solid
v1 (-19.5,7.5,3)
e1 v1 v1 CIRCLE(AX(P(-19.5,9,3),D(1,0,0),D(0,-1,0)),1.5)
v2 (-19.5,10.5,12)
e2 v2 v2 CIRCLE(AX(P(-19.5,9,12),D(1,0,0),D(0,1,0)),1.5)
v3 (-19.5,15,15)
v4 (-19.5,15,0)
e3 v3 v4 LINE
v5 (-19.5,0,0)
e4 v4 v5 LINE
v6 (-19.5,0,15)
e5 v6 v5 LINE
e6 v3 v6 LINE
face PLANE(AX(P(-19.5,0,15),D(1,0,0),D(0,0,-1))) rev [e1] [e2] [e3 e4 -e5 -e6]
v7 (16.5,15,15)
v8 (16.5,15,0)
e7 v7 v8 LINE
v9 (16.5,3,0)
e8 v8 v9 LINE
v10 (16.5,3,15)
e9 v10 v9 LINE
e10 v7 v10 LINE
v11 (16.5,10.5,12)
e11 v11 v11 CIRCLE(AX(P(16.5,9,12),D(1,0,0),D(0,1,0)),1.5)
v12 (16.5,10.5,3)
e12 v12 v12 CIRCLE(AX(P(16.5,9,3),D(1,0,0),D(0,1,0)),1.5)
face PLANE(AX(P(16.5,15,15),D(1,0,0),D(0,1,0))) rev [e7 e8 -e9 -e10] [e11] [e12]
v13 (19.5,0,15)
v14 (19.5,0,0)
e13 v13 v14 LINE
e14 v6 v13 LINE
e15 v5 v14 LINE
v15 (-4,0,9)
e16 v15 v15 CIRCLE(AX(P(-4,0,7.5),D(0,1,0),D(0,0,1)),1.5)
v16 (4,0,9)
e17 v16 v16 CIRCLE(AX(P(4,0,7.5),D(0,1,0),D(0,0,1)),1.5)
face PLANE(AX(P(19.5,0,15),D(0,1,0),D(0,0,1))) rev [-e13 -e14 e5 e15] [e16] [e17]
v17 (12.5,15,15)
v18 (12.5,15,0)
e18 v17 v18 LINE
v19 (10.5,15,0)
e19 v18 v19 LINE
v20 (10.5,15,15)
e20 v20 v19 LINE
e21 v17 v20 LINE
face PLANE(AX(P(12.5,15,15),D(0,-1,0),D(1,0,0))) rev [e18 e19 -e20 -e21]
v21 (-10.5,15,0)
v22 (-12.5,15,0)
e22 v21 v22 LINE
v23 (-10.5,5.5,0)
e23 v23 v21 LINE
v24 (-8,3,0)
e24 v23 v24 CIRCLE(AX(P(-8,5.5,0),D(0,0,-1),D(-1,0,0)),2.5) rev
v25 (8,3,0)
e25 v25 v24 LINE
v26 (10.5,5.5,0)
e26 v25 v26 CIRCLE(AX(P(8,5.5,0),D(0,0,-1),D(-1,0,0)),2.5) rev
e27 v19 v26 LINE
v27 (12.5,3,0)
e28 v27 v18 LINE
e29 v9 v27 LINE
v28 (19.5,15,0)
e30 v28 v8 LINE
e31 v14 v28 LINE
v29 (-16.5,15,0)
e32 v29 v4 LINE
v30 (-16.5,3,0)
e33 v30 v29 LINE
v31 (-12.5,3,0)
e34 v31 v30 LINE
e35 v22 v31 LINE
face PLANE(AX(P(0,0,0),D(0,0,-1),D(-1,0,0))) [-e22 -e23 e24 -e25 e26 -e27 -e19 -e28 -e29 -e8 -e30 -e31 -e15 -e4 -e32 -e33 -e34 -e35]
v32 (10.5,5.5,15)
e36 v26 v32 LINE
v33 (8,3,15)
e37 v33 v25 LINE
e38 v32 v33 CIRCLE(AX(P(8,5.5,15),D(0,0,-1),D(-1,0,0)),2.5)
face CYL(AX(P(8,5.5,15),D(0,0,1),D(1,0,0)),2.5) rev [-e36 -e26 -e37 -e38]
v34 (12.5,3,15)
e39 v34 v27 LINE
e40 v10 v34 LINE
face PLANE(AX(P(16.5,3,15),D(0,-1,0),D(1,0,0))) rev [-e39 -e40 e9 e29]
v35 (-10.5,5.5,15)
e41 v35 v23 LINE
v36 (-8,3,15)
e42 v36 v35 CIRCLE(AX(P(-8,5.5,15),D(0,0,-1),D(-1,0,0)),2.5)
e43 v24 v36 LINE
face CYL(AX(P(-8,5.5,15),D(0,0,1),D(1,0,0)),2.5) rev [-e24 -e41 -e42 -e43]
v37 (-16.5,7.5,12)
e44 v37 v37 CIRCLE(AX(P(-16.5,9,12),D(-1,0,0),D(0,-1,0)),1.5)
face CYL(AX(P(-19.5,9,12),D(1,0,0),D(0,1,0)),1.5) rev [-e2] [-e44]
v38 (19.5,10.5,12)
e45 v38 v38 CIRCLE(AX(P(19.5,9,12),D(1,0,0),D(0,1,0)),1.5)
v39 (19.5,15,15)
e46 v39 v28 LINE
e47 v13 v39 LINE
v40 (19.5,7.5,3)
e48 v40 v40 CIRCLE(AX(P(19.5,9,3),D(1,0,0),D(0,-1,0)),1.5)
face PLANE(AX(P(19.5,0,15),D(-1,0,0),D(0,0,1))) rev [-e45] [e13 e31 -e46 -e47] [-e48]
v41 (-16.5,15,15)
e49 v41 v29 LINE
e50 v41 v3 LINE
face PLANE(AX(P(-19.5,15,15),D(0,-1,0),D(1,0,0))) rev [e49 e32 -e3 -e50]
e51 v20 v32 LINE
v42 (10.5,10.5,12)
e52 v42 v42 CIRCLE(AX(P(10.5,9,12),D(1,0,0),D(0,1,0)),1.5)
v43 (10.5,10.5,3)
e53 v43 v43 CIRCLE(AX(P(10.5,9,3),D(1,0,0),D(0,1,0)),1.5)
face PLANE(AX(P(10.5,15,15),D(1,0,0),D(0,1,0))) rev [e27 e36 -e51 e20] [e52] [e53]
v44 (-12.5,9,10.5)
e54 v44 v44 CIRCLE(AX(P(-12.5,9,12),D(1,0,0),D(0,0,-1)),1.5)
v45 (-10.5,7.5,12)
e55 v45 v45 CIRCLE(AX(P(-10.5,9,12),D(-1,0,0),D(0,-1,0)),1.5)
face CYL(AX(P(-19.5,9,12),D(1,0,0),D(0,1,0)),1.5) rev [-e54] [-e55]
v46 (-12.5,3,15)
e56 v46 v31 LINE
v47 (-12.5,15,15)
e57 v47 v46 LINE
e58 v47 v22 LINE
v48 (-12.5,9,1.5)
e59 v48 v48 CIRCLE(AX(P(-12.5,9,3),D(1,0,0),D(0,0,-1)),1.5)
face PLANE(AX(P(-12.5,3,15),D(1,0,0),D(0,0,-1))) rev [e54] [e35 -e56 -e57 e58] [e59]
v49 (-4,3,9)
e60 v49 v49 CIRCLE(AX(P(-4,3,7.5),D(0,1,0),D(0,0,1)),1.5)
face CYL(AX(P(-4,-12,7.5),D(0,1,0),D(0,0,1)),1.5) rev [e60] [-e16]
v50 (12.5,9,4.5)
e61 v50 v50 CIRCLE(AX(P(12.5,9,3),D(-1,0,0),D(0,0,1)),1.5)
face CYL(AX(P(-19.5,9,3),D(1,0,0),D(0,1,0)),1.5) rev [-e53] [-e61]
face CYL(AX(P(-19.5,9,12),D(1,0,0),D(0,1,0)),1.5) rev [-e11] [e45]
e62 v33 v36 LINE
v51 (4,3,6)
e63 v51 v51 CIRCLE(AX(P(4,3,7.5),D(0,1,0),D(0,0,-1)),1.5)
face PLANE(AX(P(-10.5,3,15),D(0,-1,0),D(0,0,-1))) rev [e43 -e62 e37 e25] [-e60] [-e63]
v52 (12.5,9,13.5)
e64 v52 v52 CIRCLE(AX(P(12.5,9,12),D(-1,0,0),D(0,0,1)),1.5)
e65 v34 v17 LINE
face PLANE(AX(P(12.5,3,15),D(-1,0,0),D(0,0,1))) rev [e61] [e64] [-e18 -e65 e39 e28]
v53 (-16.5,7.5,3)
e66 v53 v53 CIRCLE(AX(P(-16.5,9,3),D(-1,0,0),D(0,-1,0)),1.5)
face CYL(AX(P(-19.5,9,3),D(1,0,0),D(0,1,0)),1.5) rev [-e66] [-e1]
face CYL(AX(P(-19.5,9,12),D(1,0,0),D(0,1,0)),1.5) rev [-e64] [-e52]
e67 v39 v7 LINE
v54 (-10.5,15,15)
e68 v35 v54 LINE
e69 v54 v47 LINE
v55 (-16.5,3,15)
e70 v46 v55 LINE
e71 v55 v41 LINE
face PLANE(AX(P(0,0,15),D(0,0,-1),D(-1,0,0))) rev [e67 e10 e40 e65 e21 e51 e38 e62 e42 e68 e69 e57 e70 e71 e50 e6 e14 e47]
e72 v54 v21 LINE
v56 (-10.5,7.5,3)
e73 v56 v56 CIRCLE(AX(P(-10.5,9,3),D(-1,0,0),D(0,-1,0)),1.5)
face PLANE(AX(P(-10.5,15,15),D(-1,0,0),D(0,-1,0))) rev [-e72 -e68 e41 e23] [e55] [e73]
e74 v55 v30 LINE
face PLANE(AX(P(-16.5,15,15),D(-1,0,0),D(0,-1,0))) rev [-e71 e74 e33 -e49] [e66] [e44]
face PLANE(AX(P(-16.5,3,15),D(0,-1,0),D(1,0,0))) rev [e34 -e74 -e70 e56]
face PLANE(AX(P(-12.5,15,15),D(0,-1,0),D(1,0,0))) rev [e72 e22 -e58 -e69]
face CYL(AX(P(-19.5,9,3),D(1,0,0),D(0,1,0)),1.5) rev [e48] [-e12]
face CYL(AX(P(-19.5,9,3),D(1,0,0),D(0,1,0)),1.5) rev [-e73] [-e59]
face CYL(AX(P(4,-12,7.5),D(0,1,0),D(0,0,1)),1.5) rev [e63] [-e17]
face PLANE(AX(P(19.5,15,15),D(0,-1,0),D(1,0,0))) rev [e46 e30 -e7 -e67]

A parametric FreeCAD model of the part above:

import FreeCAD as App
import Part
import Sketcher

V = App.Vector
Q = App.Units.Quantity


def edges_at(feature, points):
    """Names of the edges that pass closest to the given points."""
    edges = feature.Shape.Edges
    near = lambda p: min(range(len(edges)), key=lambda i: edges[i].distToShape(Part.Vertex(*p))[0])
    return sorted({f"Edge{near(p) + 1}" for p in points})

doc = App.newDocument("Part")
body = doc.addObject("PartDesign::Body", "Body")

# Sketch on XY plane
sketch1 = body.newObject("Sketcher::SketchObject", "Sketch")
sketch1.AttachmentSupport = (doc.getObject("XY_Plane"), [""])
sketch1.MapMode = "FlatFace"
sketch1.addGeometry([
    Part.LineSegment(V(-19.5, 0, 0), V(19.5, 0, 0)),  # 0
    Part.LineSegment(V(19.5, 0, 0), V(19.5, 15, 0)),  # 1
    Part.LineSegment(V(19.5, 15, 0), V(16.5, 15, 0)),  # 2
    Part.LineSegment(V(16.5, 15, 0), V(16.5, 3, 0)),  # 3
    Part.LineSegment(V(16.5, 3, 0), V(12.5, 3, 0)),  # 4
    Part.LineSegment(V(12.5, 3, 0), V(12.5, 15, 0)),  # 5
    Part.LineSegment(V(12.5, 15, 0), V(10.5, 15, 0)),  # 6
    Part.LineSegment(V(10.5, 15, 0), V(10.5, 3, 0)),  # 7
    Part.LineSegment(V(10.5, 3, 0), V(-10.5, 3, 0)),  # 8
    Part.LineSegment(V(-10.5, 3, 0), V(-10.5, 15, 0)),  # 9
    Part.LineSegment(V(-10.5, 15, 0), V(-12.5, 15, 0)),  # 10
    Part.LineSegment(V(-12.5, 15, 0), V(-12.5, 3, 0)),  # 11
    Part.LineSegment(V(-12.5, 3, 0), V(-16.5, 3, 0)),  # 12
    Part.LineSegment(V(-16.5, 3, 0), V(-16.5, 15, 0)),  # 13
    Part.LineSegment(V(-16.5, 15, 0), V(-19.5, 15, 0)),  # 14
    Part.LineSegment(V(-19.5, 15, 0), V(-19.5, 0, 0)),  # 15
], False)
sketch1.addConstraint([
    Sketcher.Constraint("Coincident", 0, 2, 1, 1),
    Sketcher.Constraint("Coincident", 1, 2, 2, 1),
    Sketcher.Constraint("Coincident", 2, 2, 3, 1),
    Sketcher.Constraint("Coincident", 3, 2, 4, 1),
    Sketcher.Constraint("Coincident", 4, 2, 5, 1),
    Sketcher.Constraint("Coincident", 5, 2, 6, 1),
    Sketcher.Constraint("Coincident", 6, 2, 7, 1),
    Sketcher.Constraint("Coincident", 7, 2, 8, 1),
    Sketcher.Constraint("Coincident", 8, 2, 9, 1),
    Sketcher.Constraint("Coincident", 9, 2, 10, 1),
    Sketcher.Constraint("Coincident", 10, 2, 11, 1),
    Sketcher.Constraint("Coincident", 11, 2, 12, 1),
    Sketcher.Constraint("Coincident", 12, 2, 13, 1),
    Sketcher.Constraint("Coincident", 13, 2, 14, 1),
    Sketcher.Constraint("Coincident", 14, 2, 15, 1),
    Sketcher.Constraint("Coincident", 15, 2, 0, 1),
    Sketcher.Constraint("Horizontal", 0),
    Sketcher.Constraint("Vertical", 1),
    Sketcher.Constraint("Horizontal", 2),
    Sketcher.Constraint("Vertical", 3),
    Sketcher.Constraint("Horizontal", 4),
    Sketcher.Constraint("Vertical", 5),
    Sketcher.Constraint("Horizontal", 6),
    Sketcher.Constraint("Vertical", 7),
    Sketcher.Constraint("Horizontal", 8),
    Sketcher.Constraint("Vertical", 9),
    Sketcher.Constraint("Horizontal", 10),
    Sketcher.Constraint("Vertical", 11),
    Sketcher.Constraint("Horizontal", 12),
    Sketcher.Constraint("Vertical", 13),
    Sketcher.Constraint("Horizontal", 14),
    Sketcher.Constraint("Vertical", 15),
    Sketcher.Constraint("Symmetric", 0, 2, 15, 2, -1, 1),
    Sketcher.Constraint("Symmetric", 6, 2, 9, 2, -2),
    Sketcher.Constraint("Symmetric", 4, 2, 11, 2, -2),
    Sketcher.Constraint("Symmetric", 2, 2, 13, 2, -2),
    Sketcher.Constraint("Horizontal", 2, 2, 5, 2),
    Sketcher.Constraint("Horizontal", 4, 2, 7, 2),
    Sketcher.Constraint("DistanceX", 0, 1, 0, 2, Q("39 mm")),
    Sketcher.Constraint("DistanceX", 2, 2, 2, 1, Q("3 mm")),
    Sketcher.Constraint("DistanceX", 4, 2, 4, 1, Q("4 mm")),
    Sketcher.Constraint("DistanceX", 6, 2, 6, 1, Q("2 mm")),
    Sketcher.Constraint("DistanceY", 1, 1, 1, 2, Q("15 mm")),
    Sketcher.Constraint("DistanceY", 3, 2, 3, 1, Q("12 mm")),
])
pad1 = body.newObject("PartDesign::Pad", "Pad")
pad1.Profile = sketch1
pad1.Length = 15

# Sketch on XZ plane
sketch2 = body.newObject("Sketcher::SketchObject", "Sketch001")
sketch2.AttachmentSupport = (doc.getObject("XZ_Plane"), [""])
sketch2.MapMode = "FlatFace"
sketch2.AttachmentOffset = App.Placement(V(0, 0, -3), App.Rotation())
sketch2.addGeometry([
    Part.Circle(V(-4, 7.5, 0), V(0, 0, 1), 1.5),
    Part.Circle(V(4, 7.5, 0), V(0, 0, 1), 1.5),
], False)
sketch2.addConstraint([
    Sketcher.Constraint("Equal", 0, 1),
    Sketcher.Constraint("Symmetric", 0, 3, 1, 3, -2),
    Sketcher.Constraint("Diameter", 0, Q("3 mm")),
    Sketcher.Constraint("DistanceX", 0, 3, -1, 1, Q("4 mm")),
    Sketcher.Constraint("DistanceY", -1, 1, 0, 3, Q("7.5 mm")),
])
pocket1 = body.newObject("PartDesign::Pocket", "Pocket")
pocket1.Profile = sketch2
pocket1.Length = 15
pocket1.Reversed = True

# Sketch on YZ plane
sketch3 = body.newObject("Sketcher::SketchObject", "Sketch002")
sketch3.AttachmentSupport = (doc.getObject("YZ_Plane"), [""])
sketch3.MapMode = "FlatFace"
sketch3.AttachmentOffset = App.Placement(V(0, 0, 19.5), App.Rotation())
sketch3.addGeometry([
    Part.Circle(V(9, 12, 0), V(0, 0, 1), 1.5),
    Part.Circle(V(9, 3, 0), V(0, 0, 1), 1.5),
], False)
sketch3.addConstraint([
    Sketcher.Constraint("Equal", 0, 1),
    Sketcher.Constraint("Vertical", 0, 3, 1, 3),
    Sketcher.Constraint("Diameter", 0, Q("3 mm")),
    Sketcher.Constraint("DistanceX", -1, 1, 0, 3, Q("9 mm")),
    Sketcher.Constraint("DistanceY", -1, 1, 0, 3, Q("12 mm")),
    Sketcher.Constraint("DistanceY", -1, 1, 1, 3, Q("3 mm")),
])
pocket2 = body.newObject("PartDesign::Pocket", "Pocket001")
pocket2.Profile = sketch3
pocket2.Type = "ThroughAll"
doc.recompute()

fillet = body.newObject("PartDesign::Fillet", "Fillet")
fillet.Base = (pocket2, edges_at(pocket2, [(-10.5, 3, 7.5), (10.5, 3, 7.5)]))
fillet.Radius = 2.5

doc.recompute()
